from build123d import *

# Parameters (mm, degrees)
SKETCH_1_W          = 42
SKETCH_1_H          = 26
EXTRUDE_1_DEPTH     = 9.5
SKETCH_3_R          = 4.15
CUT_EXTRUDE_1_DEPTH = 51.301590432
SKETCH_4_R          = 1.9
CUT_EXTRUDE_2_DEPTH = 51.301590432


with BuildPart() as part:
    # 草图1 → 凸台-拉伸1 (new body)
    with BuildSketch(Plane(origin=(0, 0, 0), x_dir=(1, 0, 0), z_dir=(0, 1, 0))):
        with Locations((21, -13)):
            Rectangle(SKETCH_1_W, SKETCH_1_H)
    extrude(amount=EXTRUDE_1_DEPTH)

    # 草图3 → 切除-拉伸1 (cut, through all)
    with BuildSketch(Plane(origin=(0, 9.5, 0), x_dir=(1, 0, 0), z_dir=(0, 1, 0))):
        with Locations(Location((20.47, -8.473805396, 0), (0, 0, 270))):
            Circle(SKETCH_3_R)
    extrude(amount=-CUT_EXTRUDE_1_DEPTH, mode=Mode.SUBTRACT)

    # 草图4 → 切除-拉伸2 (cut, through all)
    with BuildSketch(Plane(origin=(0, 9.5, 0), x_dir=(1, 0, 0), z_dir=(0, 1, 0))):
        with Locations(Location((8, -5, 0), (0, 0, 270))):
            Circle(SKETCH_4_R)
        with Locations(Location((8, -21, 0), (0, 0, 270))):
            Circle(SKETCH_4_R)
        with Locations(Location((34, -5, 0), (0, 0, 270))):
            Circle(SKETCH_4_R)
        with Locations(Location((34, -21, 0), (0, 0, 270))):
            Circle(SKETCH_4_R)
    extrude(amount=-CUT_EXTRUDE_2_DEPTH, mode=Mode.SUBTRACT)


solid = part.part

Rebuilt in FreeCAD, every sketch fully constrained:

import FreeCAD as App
import Part
import Sketcher

V = App.Vector
Q = App.Units.Quantity

doc = App.newDocument("Part")
body = doc.addObject("PartDesign::Body", "Body")

# Sketch on XZ plane
sketch1 = doc.addObject("Sketcher::SketchObject", "Sketch")
body.addObject(sketch1)
sketch1.AttachmentSupport = (doc.XZ_Plane, [""])
sketch1.MapMode = "FlatFace"
sketch1.addGeometry([
    Part.LineSegment(V(0, 0, 0), V(0, 26, 0)),
    Part.LineSegment(V(0, 26, 0), V(42, 26, 0)),
    Part.LineSegment(V(42, 26, 0), V(42, 0, 0)),
    Part.LineSegment(V(42, 0, 0), V(0, 0, 0)),
], False)
sketch1.addConstraint([
    Sketcher.Constraint("Coincident", 0, 2, 1, 1),
    Sketcher.Constraint("Coincident", 1, 2, 2, 1),
    Sketcher.Constraint("Coincident", 2, 2, 3, 1),
    Sketcher.Constraint("Coincident", 3, 2, 0, 1),
    Sketcher.Constraint("Vertical", 0),
    Sketcher.Constraint("Horizontal", 1),
    Sketcher.Constraint("Vertical", 2),
    Sketcher.Constraint("Horizontal", 3),
    Sketcher.Constraint("Coincident", 3, 2, -1, 1),
    Sketcher.Constraint("DistanceX", 1, 1, 1, 2, Q("42 mm")),
    Sketcher.Constraint("DistanceY", 0, 1, 0, 2, Q("26 mm")),
])
pad1 = doc.addObject("PartDesign::Pad", "Pad")
body.addObject(pad1)
pad1.Profile = sketch1
pad1.Length = 9.5
pad1.Reversed = True

# Sketch on XZ plane
sketch2 = doc.addObject("Sketcher::SketchObject", "Sketch001")
body.addObject(sketch2)
sketch2.AttachmentSupport = (doc.XZ_Plane, [""])
sketch2.MapMode = "FlatFace"
sketch2.AttachmentOffset = App.Placement(V(0, 0, -9.5), App.Rotation())
sketch2.addGeometry(Part.Circle(V(20.47, 8.473805, 0), V(0, 0, 1), 4.15), False)
sketch2.addConstraint([
    Sketcher.Constraint("Diameter", 0, Q("8.3 mm")),
    Sketcher.Constraint("DistanceX", -1, 1, 0, 3, Q("20.47 mm")),
    Sketcher.Constraint("DistanceY", -1, 1, 0, 3, Q("8.473805 mm")),
])
pocket1 = doc.addObject("PartDesign::Pocket", "Pocket")
body.addObject(pocket1)
pocket1.Profile = sketch2
pocket1.Type = "ThroughAll"
pocket1.Reversed = True

# Sketch on XZ plane
sketch3 = doc.addObject("Sketcher::SketchObject", "Sketch002")
body.addObject(sketch3)
sketch3.AttachmentSupport = (doc.XZ_Plane, [""])
sketch3.MapMode = "FlatFace"
sketch3.AttachmentOffset = App.Placement(V(0, 0, -9.5), App.Rotation())
sketch3.addGeometry([
    Part.Circle(V(8, 5, 0), V(0, 0, 1), 1.9),
    Part.Circle(V(8, 21, 0), V(0, 0, 1), 1.9),
    Part.Circle(V(34, 5, 0), V(0, 0, 1), 1.9),
    Part.Circle(V(34, 21, 0), V(0, 0, 1), 1.9),
], False)
sketch3.addConstraint([
    Sketcher.Constraint("Equal", 0, 1),
    Sketcher.Constraint("Equal", 1, 2),
    Sketcher.Constraint("Equal", 2, 3),
    Sketcher.Constraint("Horizontal", 0, 3, 2, 3),
    Sketcher.Constraint("Horizontal", 1, 3, 3, 3),
    Sketcher.Constraint("Vertical", 0, 3, 1, 3),
    Sketcher.Constraint("Vertical", 2, 3, 3, 3),
    Sketcher.Constraint("Diameter", 0, Q("3.8 mm")),
    Sketcher.Constraint("DistanceX", -1, 1, 0, 3, Q("8 mm")),
    Sketcher.Constraint("DistanceY", -1, 1, 0, 3, Q("5 mm")),
    Sketcher.Constraint("DistanceY", -1, 1, 1, 3, Q("21 mm")),
    Sketcher.Constraint("DistanceX", -1, 1, 2, 3, Q("34 mm")),
])
pocket2 = doc.addObject("PartDesign::Pocket", "Pocket001")
body.addObject(pocket2)
pocket2.Profile = sketch3
pocket2.Type = "ThroughAll"
pocket2.Reversed = True

doc.recompute()
